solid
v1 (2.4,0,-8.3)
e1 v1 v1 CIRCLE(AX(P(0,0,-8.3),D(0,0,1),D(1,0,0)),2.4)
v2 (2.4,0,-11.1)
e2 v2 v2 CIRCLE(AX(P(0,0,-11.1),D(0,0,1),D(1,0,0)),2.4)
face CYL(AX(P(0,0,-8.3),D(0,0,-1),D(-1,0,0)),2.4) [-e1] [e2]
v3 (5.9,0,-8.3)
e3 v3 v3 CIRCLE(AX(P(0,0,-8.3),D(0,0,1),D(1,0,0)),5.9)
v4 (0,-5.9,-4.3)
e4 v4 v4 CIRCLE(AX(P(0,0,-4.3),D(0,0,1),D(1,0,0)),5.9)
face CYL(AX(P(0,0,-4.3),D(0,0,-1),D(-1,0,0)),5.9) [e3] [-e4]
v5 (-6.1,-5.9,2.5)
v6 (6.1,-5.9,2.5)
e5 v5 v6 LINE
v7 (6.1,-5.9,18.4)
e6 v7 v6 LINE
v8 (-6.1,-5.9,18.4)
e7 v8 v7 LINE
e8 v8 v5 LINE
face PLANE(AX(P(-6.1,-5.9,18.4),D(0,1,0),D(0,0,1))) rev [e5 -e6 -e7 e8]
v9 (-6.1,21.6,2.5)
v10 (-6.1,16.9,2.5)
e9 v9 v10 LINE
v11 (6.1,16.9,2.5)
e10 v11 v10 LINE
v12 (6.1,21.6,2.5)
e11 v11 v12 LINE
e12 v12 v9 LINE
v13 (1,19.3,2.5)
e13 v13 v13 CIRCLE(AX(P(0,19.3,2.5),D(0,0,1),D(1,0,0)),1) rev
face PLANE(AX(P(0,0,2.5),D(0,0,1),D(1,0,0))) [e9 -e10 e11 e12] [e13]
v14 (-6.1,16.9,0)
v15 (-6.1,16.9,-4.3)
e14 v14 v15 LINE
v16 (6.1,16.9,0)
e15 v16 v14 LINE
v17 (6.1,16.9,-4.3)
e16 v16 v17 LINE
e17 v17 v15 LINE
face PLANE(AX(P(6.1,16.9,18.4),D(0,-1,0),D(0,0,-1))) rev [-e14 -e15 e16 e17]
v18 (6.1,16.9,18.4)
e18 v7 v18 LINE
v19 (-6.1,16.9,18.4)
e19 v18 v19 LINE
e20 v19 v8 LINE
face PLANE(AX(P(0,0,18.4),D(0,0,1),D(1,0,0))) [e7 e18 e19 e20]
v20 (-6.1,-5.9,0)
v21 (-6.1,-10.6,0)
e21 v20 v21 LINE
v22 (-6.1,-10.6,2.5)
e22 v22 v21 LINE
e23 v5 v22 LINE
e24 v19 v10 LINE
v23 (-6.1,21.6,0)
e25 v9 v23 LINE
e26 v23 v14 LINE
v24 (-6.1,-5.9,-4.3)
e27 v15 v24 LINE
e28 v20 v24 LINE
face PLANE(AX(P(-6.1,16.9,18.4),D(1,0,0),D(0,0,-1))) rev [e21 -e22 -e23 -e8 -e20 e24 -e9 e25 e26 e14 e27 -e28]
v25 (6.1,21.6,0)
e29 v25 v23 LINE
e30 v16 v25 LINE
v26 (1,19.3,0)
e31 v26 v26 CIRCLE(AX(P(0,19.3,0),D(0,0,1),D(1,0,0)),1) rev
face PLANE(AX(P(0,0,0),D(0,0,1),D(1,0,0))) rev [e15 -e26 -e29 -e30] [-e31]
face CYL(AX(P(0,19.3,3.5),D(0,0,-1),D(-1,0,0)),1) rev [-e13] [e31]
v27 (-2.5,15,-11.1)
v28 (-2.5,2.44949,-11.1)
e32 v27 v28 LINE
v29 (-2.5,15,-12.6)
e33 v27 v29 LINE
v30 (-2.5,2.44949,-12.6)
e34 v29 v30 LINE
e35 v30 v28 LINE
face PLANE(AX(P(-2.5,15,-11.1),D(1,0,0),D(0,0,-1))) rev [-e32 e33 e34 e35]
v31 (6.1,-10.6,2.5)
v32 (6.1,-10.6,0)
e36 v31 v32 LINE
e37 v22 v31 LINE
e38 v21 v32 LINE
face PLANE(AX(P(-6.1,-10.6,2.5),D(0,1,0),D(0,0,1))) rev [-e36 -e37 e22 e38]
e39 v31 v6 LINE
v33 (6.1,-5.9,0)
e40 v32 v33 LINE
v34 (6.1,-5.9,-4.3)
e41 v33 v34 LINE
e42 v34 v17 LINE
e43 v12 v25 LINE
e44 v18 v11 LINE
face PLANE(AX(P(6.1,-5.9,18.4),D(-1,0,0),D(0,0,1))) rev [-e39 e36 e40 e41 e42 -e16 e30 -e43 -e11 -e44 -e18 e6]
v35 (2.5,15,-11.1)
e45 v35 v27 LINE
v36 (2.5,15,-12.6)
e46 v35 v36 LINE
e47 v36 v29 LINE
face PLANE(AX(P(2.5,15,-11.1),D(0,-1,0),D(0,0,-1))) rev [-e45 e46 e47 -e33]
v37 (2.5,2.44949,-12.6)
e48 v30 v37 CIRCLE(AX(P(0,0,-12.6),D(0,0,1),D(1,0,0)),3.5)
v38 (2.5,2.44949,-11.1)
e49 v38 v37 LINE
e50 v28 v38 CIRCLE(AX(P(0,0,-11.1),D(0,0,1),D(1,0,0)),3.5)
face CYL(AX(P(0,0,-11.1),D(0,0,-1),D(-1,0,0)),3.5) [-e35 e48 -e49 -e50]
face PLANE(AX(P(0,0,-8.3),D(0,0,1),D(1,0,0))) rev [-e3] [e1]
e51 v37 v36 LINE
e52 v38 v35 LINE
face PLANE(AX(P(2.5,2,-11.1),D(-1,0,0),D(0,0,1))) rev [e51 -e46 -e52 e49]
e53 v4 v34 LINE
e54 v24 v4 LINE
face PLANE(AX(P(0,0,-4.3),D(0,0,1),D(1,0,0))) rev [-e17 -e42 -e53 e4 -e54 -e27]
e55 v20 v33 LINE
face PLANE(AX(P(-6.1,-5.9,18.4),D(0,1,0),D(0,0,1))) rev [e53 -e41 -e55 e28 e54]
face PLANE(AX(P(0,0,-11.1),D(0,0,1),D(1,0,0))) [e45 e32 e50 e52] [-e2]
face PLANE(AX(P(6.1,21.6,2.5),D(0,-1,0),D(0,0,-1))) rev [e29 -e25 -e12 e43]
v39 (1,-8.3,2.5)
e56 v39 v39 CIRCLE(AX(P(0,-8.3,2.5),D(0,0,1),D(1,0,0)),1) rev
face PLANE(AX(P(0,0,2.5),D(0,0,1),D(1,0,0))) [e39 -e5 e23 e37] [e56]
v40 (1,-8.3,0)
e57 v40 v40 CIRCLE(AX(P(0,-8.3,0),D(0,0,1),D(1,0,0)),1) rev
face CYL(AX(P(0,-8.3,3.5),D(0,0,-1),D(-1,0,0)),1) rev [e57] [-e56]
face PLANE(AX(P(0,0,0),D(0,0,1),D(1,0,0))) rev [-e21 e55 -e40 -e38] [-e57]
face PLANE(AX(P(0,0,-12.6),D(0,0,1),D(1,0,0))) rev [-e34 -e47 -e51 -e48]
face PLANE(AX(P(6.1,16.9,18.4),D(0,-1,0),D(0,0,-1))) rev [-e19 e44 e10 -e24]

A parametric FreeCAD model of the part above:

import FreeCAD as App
import Part
import Sketcher
from FreeCAD import Vector
Q = App.Units.Quantity


def add_polygon(sketch, points):
    """Adds a closed chain of lines whose ends are joined by coincident constraints."""
    first, n = sketch.GeometryCount, len(points)
    for a, b in zip(points, points[1:] + points[:1]):
        sketch.addGeometry(Part.LineSegment(App.Vector(*a, 0), App.Vector(*b, 0)), False)
    for i in range(n):
        sketch.addConstraint(Sketcher.Constraint("Coincident", first + i, 2, first + (i + 1) % n, 1))

doc = App.newDocument("Part")
params = doc.addObject("Spreadsheet::Sheet", "Params")
for row, (alias, value) in enumerate([
    ("sketch1_width", "12.2 mm"),
    ("sketch1_height", "22.8 mm"),
    ("pad1_length", "22.7 mm"),
    ("sketch2_width", "12.2 mm"),
    ("sketch2_height", "32.2 mm"),
    ("pad2_length", "2.5 mm"),
    ("sketch3_diameter", "2 mm"),
    ("pocket1_length", "4.5 mm"),
    ("sketch4_diameter", "11.8 mm"),
    ("pad3_length", "4 mm"),
    ("sketch5_diameter", "4.8 mm"),
    ("pad4_length", "2.8 mm"),
    ("sketch6_diameter", "7 mm"),
    ("pad5_length", "1.5 mm"),
    ("sketch7_width", "5 mm"),
    ("sketch7_height", "13 mm"),
    ("pad6_length", "1.5 mm"),
], start=1):
    params.set(f"A{row}", alias)
    params.set(f"B{row}", "=" + value)
    params.setAlias(f"B{row}", alias)

body = doc.addObject("PartDesign::Body", "Body")

# Sketch on XY plane
sketch1 = body.newObject("Sketcher::SketchObject", "Sketch")
sketch1.AttachmentSupport = (doc.getObject("XY_Plane"), [""])
sketch1.MapMode = "FlatFace"
sketch1.AttachmentOffset = App.Placement(Vector(0, 0, -4.3), App.Rotation())
add_polygon(sketch1, [(-6, 17), (-6, -6), (6, -6), (6, 17)])  # lines 0-3
sketch1.addConstraint(Sketcher.Constraint("Vertical", 0))
sketch1.addConstraint(Sketcher.Constraint("Horizontal", 1))
sketch1.addConstraint(Sketcher.Constraint("Vertical", 2))
sketch1.addConstraint(Sketcher.Constraint("Horizontal", 3))
sketch1.addConstraint(Sketcher.Constraint("DistanceX", 1, 1, 1, 2, Q("12.2 mm")))
sketch1.addConstraint(Sketcher.Constraint("DistanceY", 0, 2, 0, 1, Q("22.8 mm")))
sketch1.addConstraint(Sketcher.Constraint("DistanceX", 0, 2, -1, 1, Q("6.1 mm")))
sketch1.addConstraint(Sketcher.Constraint("DistanceY", 0, 2, -1, 1, Q("5.9 mm")))
sketch1.setExpression("Constraints[8]", "Params.sketch1_width")
sketch1.setExpression("Constraints[9]", "Params.sketch1_height")
pad1 = body.newObject("PartDesign::Pad", "Pad")
pad1.Profile = sketch1
pad1.setExpression("Length", "Params.pad1_length")

# Sketch on XY plane
sketch2 = body.newObject("Sketcher::SketchObject", "Sketch001")
sketch2.AttachmentSupport = (doc.getObject("XY_Plane"), [""])
sketch2.MapMode = "FlatFace"
add_polygon(sketch2, [(-6, 22), (-6, -11), (6, -11), (6, 22)])  # lines 0-3
sketch2.addConstraint(Sketcher.Constraint("Vertical", 0))
sketch2.addConstraint(Sketcher.Constraint("Horizontal", 1))
sketch2.addConstraint(Sketcher.Constraint("Vertical", 2))
sketch2.addConstraint(Sketcher.Constraint("Horizontal", 3))
sketch2.addConstraint(Sketcher.Constraint("DistanceX", 1, 1, 1, 2, Q("12.2 mm")))
sketch2.addConstraint(Sketcher.Constraint("DistanceY", 0, 2, 0, 1, Q("32.2 mm")))
sketch2.addConstraint(Sketcher.Constraint("DistanceX", 0, 2, -1, 1, Q("6.1 mm")))
sketch2.addConstraint(Sketcher.Constraint("DistanceY", 0, 2, -1, 1, Q("10.6 mm")))
sketch2.setExpression("Constraints[8]", "Params.sketch2_width")
sketch2.setExpression("Constraints[9]", "Params.sketch2_height")
pad2 = body.newObject("PartDesign::Pad", "Pad001")
pad2.Profile = sketch2
pad2.setExpression("Length", "Params.pad2_length")

# Sketch on XY plane
sketch3 = body.newObject("Sketcher::SketchObject", "Sketch002")
sketch3.AttachmentSupport = (doc.getObject("XY_Plane"), [""])
sketch3.MapMode = "FlatFace"
sketch3.AttachmentOffset = App.Placement(Vector(0, 0, -1), App.Rotation())
sketch3.addGeometry(Part.Circle(Vector(0, -8.3, 0), Vector(0, 0, 1), 1), False)
sketch3.addGeometry(Part.Circle(Vector(0, 19.3, 0), Vector(0, 0, 1), 1), False)
sketch3.addConstraint(Sketcher.Constraint("Equal", 0, 1))
sketch3.addConstraint(Sketcher.Constraint("PointOnObject", 0, 3, -2))
sketch3.addConstraint(Sketcher.Constraint("PointOnObject", 1, 3, -2))
sketch3.addConstraint(Sketcher.Constraint("Diameter", 0, Q("2 mm")))
sketch3.addConstraint(Sketcher.Constraint("DistanceY", 0, 3, -1, 1, Q("8.3 mm")))
sketch3.addConstraint(Sketcher.Constraint("DistanceY", -1, 1, 1, 3, Q("19.3 mm")))
sketch3.setExpression("Constraints[3]", "Params.sketch3_diameter")
pocket1 = body.newObject("PartDesign::Pocket", "Pocket")
pocket1.Profile = sketch3
pocket1.setExpression("Length", "Params.pocket1_length")
pocket1.Reversed = True

# Sketch on XY plane
sketch4 = body.newObject("Sketcher::SketchObject", "Sketch003")
sketch4.AttachmentSupport = (doc.getObject("XY_Plane"), [""])
sketch4.MapMode = "FlatFace"
sketch4.AttachmentOffset = App.Placement(Vector(0, 0, -8.3), App.Rotation())
sketch4.addGeometry(Part.Circle(Vector(0, 0, 0), Vector(0, 0, 1), 6), False)
sketch4.addConstraint(Sketcher.Constraint("Coincident", 0, 3, -1, 1))
sketch4.addConstraint(Sketcher.Constraint("Diameter", 0, Q("11.8 mm")))
sketch4.setExpression("Constraints[1]", "Params.sketch4_diameter")
pad3 = body.newObject("PartDesign::Pad", "Pad002")
pad3.Profile = sketch4
pad3.setExpression("Length", "Params.pad3_length")

# Sketch on XY plane
sketch5 = body.newObject("Sketcher::SketchObject", "Sketch004")
sketch5.AttachmentSupport = (doc.getObject("XY_Plane"), [""])
sketch5.MapMode = "FlatFace"
sketch5.AttachmentOffset = App.Placement(Vector(0, 0, -11.1), App.Rotation())
sketch5.addGeometry(Part.Circle(Vector(0, 0, 0), Vector(0, 0, 1), 2.4), False)
sketch5.addConstraint(Sketcher.Constraint("Coincident", 0, 3, -1, 1))
sketch5.addConstraint(Sketcher.Constraint("Diameter", 0, Q("4.8 mm")))
sketch5.setExpression("Constraints[1]", "Params.sketch5_diameter")
pad4 = body.newObject("PartDesign::Pad", "Pad003")
pad4.Profile = sketch5
pad4.setExpression("Length", "Params.pad4_length")

# Sketch on XY plane
sketch6 = body.newObject("Sketcher::SketchObject", "Sketch005")
sketch6.AttachmentSupport = (doc.getObject("XY_Plane"), [""])
sketch6.MapMode = "FlatFace"
sketch6.AttachmentOffset = App.Placement(Vector(0, 0, -12.6), App.Rotation())
sketch6.addGeometry(Part.Circle(Vector(0, 0, 0), Vector(0, 0, 1), 3.5), False)
sketch6.addConstraint(Sketcher.Constraint("Coincident", 0, 3, -1, 1))
sketch6.addConstraint(Sketcher.Constraint("Diameter", 0, Q("7 mm")))
sketch6.setExpression("Constraints[1]", "Params.sketch6_diameter")
pad5 = body.newObject("PartDesign::Pad", "Pad004")
pad5.Profile = sketch6
pad5.setExpression("Length", "Params.pad5_length")

# Sketch on XY plane
sketch7 = body.newObject("Sketcher::SketchObject", "Sketch006")
sketch7.AttachmentSupport = (doc.getObject("XY_Plane"), [""])
sketch7.MapMode = "FlatFace"
sketch7.AttachmentOffset = App.Placement(Vector(0, 0, -12.6), App.Rotation())
add_polygon(sketch7, [(-2, 15), (-2, 2), (2, 2), (2, 15)])  # lines 0-3
sketch7.addConstraint(Sketcher.Constraint("Vertical", 0))
sketch7.addConstraint(Sketcher.Constraint("Horizontal", 1))
sketch7.addConstraint(Sketcher.Constraint("Vertical", 2))
sketch7.addConstraint(Sketcher.Constraint("Horizontal", 3))
sketch7.addConstraint(Sketcher.Constraint("DistanceX", 1, 1, 1, 2, Q("5 mm")))
sketch7.addConstraint(Sketcher.Constraint("DistanceY", 0, 2, 0, 1, Q("13 mm")))
sketch7.addConstraint(Sketcher.Constraint("DistanceY", -1, 1, 0, 2, Q("2 mm")))
sketch7.addConstraint(Sketcher.Constraint("DistanceX", 0, 2, -1, 1, Q("2.5 mm")))
sketch7.setExpression("Constraints[8]", "Params.sketch7_width")
sketch7.setExpression("Constraints[9]", "Params.sketch7_height")
pad6 = body.newObject("PartDesign::Pad", "Pad005")
pad6.Profile = sketch7
pad6.setExpression("Length", "Params.pad6_length")

doc.recompute()
